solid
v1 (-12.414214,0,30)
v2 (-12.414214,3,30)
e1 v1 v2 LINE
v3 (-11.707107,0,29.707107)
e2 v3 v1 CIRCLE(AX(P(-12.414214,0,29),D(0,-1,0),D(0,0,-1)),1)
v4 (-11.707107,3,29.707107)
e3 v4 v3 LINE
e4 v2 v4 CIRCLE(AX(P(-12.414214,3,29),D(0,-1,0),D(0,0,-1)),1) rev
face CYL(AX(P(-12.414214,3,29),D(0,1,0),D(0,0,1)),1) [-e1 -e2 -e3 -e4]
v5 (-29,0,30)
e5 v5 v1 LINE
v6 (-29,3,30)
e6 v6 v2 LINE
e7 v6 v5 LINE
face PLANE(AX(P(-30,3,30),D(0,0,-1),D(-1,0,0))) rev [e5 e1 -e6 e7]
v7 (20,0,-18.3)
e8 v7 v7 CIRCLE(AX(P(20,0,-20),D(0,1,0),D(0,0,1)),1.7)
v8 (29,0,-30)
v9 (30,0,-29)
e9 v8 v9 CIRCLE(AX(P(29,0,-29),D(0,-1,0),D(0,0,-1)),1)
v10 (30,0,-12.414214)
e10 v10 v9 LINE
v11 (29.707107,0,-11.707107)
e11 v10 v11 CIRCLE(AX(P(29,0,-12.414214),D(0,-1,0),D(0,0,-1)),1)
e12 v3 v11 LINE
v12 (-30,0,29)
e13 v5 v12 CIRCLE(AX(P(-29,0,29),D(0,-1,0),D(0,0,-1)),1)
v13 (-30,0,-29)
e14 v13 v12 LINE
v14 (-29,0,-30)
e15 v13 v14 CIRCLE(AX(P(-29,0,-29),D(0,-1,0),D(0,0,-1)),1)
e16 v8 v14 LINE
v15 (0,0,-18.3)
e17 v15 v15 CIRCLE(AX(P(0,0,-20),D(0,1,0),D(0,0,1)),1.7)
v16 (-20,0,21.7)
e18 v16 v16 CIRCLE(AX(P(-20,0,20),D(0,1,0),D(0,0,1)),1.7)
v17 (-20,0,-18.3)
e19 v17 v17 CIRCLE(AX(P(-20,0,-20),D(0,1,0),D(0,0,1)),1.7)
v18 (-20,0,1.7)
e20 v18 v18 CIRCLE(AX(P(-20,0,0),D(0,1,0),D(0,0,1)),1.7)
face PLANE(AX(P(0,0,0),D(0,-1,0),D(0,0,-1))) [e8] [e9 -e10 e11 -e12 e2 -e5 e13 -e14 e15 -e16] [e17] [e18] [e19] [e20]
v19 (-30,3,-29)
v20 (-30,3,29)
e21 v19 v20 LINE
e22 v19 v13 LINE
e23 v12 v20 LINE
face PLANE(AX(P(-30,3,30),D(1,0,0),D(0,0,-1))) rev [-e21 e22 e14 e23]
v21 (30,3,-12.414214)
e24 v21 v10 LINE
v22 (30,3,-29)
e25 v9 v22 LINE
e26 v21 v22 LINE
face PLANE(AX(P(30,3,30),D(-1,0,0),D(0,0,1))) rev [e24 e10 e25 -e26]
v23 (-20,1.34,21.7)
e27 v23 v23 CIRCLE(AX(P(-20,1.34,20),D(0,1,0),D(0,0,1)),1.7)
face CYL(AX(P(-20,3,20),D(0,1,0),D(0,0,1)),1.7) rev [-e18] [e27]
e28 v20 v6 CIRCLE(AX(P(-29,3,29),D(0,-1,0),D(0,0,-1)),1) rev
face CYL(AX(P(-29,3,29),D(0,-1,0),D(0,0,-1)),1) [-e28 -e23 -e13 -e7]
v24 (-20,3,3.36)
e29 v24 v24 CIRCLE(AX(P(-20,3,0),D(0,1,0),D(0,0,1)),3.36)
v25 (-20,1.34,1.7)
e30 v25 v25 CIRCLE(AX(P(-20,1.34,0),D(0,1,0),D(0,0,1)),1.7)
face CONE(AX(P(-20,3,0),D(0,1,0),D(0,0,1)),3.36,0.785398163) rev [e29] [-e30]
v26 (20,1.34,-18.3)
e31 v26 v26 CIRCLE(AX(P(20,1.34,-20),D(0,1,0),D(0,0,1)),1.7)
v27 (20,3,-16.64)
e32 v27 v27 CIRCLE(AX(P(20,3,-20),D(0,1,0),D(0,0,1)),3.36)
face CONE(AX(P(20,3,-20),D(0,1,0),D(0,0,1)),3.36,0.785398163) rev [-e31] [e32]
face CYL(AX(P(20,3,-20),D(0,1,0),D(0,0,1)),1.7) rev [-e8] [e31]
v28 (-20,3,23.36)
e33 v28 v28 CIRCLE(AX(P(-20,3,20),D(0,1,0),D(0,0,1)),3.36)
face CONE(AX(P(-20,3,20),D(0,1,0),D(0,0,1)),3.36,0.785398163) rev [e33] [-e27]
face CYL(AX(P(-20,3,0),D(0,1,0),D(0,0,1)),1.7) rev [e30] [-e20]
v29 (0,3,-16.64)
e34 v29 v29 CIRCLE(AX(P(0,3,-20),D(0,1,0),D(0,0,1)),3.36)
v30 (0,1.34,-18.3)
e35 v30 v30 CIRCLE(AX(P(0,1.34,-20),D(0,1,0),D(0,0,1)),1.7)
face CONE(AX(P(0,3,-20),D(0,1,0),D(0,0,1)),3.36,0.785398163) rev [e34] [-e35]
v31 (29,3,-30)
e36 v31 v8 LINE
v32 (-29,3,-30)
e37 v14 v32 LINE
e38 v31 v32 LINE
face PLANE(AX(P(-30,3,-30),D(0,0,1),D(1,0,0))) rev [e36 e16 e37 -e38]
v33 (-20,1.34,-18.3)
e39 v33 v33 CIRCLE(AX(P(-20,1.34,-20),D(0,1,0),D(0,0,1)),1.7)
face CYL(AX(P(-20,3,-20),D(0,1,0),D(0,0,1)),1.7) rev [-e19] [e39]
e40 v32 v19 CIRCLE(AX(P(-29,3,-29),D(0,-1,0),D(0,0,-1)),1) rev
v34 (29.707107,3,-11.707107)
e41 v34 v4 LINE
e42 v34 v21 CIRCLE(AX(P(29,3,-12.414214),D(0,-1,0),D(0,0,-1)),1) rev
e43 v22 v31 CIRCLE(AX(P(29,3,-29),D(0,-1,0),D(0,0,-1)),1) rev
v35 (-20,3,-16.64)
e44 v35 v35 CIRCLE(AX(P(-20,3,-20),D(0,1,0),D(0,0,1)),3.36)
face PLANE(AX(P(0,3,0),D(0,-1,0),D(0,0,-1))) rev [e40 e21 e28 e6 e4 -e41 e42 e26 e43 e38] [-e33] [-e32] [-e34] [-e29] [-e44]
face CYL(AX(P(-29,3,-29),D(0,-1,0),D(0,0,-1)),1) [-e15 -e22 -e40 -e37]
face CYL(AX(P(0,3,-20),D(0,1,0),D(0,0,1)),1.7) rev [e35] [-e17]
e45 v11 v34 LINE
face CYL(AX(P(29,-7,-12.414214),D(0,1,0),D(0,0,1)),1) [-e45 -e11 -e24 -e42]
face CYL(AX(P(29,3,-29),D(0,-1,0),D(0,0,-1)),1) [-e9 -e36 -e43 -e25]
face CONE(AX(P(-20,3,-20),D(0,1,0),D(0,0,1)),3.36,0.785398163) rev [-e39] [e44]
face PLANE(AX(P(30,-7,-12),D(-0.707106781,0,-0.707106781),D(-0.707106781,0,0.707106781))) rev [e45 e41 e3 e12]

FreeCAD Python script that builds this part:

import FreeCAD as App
import Part
import Sketcher

V = App.Vector
Q = App.Units.Quantity


def edges_at(feature, points):
    """Names of the edges that pass closest to the given points."""
    edges = feature.Shape.Edges
    near = lambda p: min(range(len(edges)), key=lambda i: edges[i].distToShape(Part.Vertex(*p))[0])
    return sorted({f"Edge{near(p) + 1}" for p in points})


def add_polygon(sketch, points):
    """Adds a closed chain of lines whose ends are joined by coincident constraints."""
    first, n = sketch.GeometryCount, len(points)
    for a, b in zip(points, points[1:] + points[:1]):
        sketch.addGeometry(Part.LineSegment(App.Vector(*a, 0), App.Vector(*b, 0)), False)
    for i in range(n):
        sketch.addConstraint(Sketcher.Constraint("Coincident", first + i, 2, first + (i + 1) % n, 1))

doc = App.newDocument("Part")
body = doc.addObject("PartDesign::Body", "Body")

# Sketch on XZ plane
sketch1 = body.newObject("Sketcher::SketchObject", "Sketch")
sketch1.AttachmentSupport = (doc.getObject("XZ_Plane"), [""])
sketch1.MapMode = "FlatFace"
add_polygon(sketch1, [(-30, -30), (-30, 30), (30, 30), (30, -30)])  # lines 0-3
sketch1.addConstraint([
    Sketcher.Constraint("Vertical", 0),
    Sketcher.Constraint("Horizontal", 1),
    Sketcher.Constraint("Vertical", 2),
    Sketcher.Constraint("Horizontal", 3),
    Sketcher.Constraint("Symmetric", 0, 2, 2, 2, -1, 1),
    Sketcher.Constraint("Equal", 3, 0),
    Sketcher.Constraint("DistanceX", 1, 1, 1, 2, Q("60 mm")),
])
pad1 = body.newObject("PartDesign::Pad", "Pad")
pad1.Profile = sketch1
pad1.Length = 3
pad1.Reversed = True

# Sketch on XZ plane
sketch2 = body.newObject("Sketcher::SketchObject", "Sketch001")
sketch2.AttachmentSupport = (doc.getObject("XZ_Plane"), [""])
sketch2.MapMode = "FlatFace"
sketch2.AttachmentOffset = App.Placement(V(0, 0, -3), App.Rotation())
add_polygon(sketch2, [(30, -12), (-12, 30), (30, 30)])  # lines 0-2
sketch2.addConstraint([
    Sketcher.Constraint("Horizontal", 1),
    Sketcher.Constraint("Vertical", 2),
    Sketcher.Constraint("Equal", 1, 2),
    Sketcher.Constraint("DistanceX", 1, 1, 1, 2, Q("42 mm")),
    Sketcher.Constraint("DistanceX", 0, 2, -1, 1, Q("12 mm")),
    Sketcher.Constraint("DistanceY", -1, 1, 0, 2, Q("30 mm")),
])
pocket1 = body.newObject("PartDesign::Pocket", "Pocket")
pocket1.Profile = sketch2
pocket1.Length = 10
pocket1.Reversed = True

# Sketch on YZ plane
sketch3 = body.newObject("Sketcher::SketchObject", "Sketch002")
sketch3.AttachmentSupport = (doc.getObject("YZ_Plane"), [""])
sketch3.MapMode = "FlatFace"
sketch3.AttachmentOffset = App.Placement(V(0, 0, -20), App.Rotation())
add_polygon(sketch3, [(0, -20), (3, -20), (3, -16.64), (1.34, -18.3), (0, -18.3)])  # lines 0-4
sketch3.addGeometry(Part.LineSegment(V(3, -20, 0), V(0, -20, 0)), True)  # axis
sketch3.addConstraint([
    Sketcher.Constraint("Horizontal", 0),
    Sketcher.Constraint("Vertical", 1),
    Sketcher.Constraint("Horizontal", 3),
    Sketcher.Constraint("Vertical", 4),
    Sketcher.Constraint("Horizontal", 5),
    Sketcher.Constraint("Coincident", 5, 1, 0, 2),
    Sketcher.Constraint("PointOnObject", 3, 2, -2),
    Sketcher.Constraint("PointOnObject", 5, 2, -2),
    Sketcher.Constraint("DistanceX", 0, 1, 0, 2, Q("3 mm")),
    Sketcher.Constraint("Angle", 2, Q("-135 deg")),
    Sketcher.Constraint("DistanceY", 4, 2, 4, 1, Q("1.7 mm")),
    Sketcher.Constraint("DistanceY", 0, 2, -1, 1, Q("20 mm")),
    Sketcher.Constraint("DistanceX", 3, 2, 3, 1, Q("1.34 mm")),
])
groove = body.newObject("PartDesign::Groove", "Groove")
groove.Profile = sketch3
groove.ReferenceAxis = (sketch3, ["Axis0"])
groove.Angle = 360
doc.recompute()

linearpattern = body.newObject("PartDesign::LinearPattern", "LinearPattern")
linearpattern.Originals = [groove]
linearpattern.Direction = (doc.getObject("X_Axis"), [""])
linearpattern.Mode = "offset"
linearpattern.Offset = 20
linearpattern.Occurrences = 2
body.Tip = linearpattern
doc.recompute()

linearpattern2 = body.newObject("PartDesign::LinearPattern", "LinearPattern001")
linearpattern2.Originals = [groove]
linearpattern2.Direction = (doc.getObject("X_Axis"), [""])
linearpattern2.Mode = "offset"
linearpattern2.Offset = 40
linearpattern2.Occurrences = 2
body.Tip = linearpattern2
doc.recompute()

linearpattern3 = body.newObject("PartDesign::LinearPattern", "LinearPattern002")
linearpattern3.Originals = [groove]
linearpattern3.Direction = (doc.getObject("Z_Axis"), [""])
linearpattern3.Mode = "offset"
linearpattern3.Offset = 20
linearpattern3.Occurrences = 2
body.Tip = linearpattern3
doc.recompute()

linearpattern4 = body.newObject("PartDesign::LinearPattern", "LinearPattern003")
linearpattern4.Originals = [groove]
linearpattern4.Direction = (doc.getObject("Z_Axis"), [""])
linearpattern4.Mode = "offset"
linearpattern4.Offset = 40
linearpattern4.Occurrences = 2
body.Tip = linearpattern4
doc.recompute()

fillet = body.newObject("PartDesign::Fillet", "Fillet")
fillet.Base = (linearpattern4, edges_at(linearpattern4, [
    (30, 1.5, -12),
    (-12, 1.5, 30),
    (-30, 1.5, 30),
    (-30, 1.5, -30),
    (30, 1.5, -30),
]))
fillet.Radius = 1

doc.recompute()
